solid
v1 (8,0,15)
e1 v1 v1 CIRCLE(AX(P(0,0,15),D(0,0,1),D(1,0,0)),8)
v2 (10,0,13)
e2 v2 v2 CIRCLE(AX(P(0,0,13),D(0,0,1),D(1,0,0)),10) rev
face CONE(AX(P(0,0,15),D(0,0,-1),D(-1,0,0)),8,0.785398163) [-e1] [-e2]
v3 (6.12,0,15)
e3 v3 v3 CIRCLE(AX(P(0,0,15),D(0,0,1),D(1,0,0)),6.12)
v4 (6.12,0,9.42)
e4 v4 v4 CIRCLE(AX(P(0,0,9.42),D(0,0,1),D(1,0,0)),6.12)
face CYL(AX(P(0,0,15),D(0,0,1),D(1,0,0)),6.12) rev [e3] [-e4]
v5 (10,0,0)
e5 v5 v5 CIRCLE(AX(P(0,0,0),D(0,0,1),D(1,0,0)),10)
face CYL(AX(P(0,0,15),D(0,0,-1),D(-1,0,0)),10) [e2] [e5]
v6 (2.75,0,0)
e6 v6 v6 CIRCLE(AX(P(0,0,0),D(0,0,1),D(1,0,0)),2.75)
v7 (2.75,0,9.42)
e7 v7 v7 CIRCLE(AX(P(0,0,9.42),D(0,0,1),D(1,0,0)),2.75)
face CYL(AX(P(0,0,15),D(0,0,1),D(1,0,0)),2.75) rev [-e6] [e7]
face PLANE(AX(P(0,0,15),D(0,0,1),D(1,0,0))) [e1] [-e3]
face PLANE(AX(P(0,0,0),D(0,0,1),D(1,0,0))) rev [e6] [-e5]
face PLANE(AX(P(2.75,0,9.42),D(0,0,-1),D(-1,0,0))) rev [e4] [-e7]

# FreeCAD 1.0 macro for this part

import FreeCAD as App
import Part
import Sketcher
Q = App.Units.Quantity


def edges_at(feature, points):
    """Names of the edges that pass closest to the given points."""
    edges = feature.Shape.Edges
    near = lambda p: min(range(len(edges)), key=lambda i: edges[i].distToShape(Part.Vertex(*p))[0])
    return sorted({f"Edge{near(p) + 1}" for p in points})

doc = App.newDocument("Part")
params = doc.addObject("Spreadsheet::Sheet", "Params")
for row, (alias, value) in enumerate([
    ("sketch1_diameter", "20 mm"),
    ("pad1_length", "15 mm"),
    ("chamfer_size", "2 mm"),
    ("sketch2_diameter", "5.5 mm"),
    ("hole_diameter", "5.5 mm"),
    ("hole_cbore_diameter", "12.24 mm"),
    ("hole_cbore_depth", "5.58 mm"),
], start=1):
    params.set(f"A{row}", alias)
    params.set(f"B{row}", "=" + value)
    params.setAlias(f"B{row}", alias)

body = doc.addObject("PartDesign::Body", "Body")

sketch1 = doc.addObject("Sketcher::SketchObject", "Sketch")
body.addObject(sketch1)
sketch1.AttachmentSupport = (doc.XY_Plane, [""])
sketch1.MapMode = "FlatFace"
sketch1.addGeometry(Part.Circle(App.Vector(0, 0, 0), App.Vector(0, 0, 1), 10), False)
sketch1.addConstraint([
    Sketcher.Constraint("Coincident", 0, 3, -1, 1),
    Sketcher.Constraint("Diameter", 0, Q("20 mm")),
])
sketch1.setExpression("Constraints[1]", "Params.sketch1_diameter")
pad1 = doc.addObject("PartDesign::Pad", "Pad")
body.addObject(pad1)
pad1.Profile = sketch1
pad1.setExpression("Length", "Params.pad1_length")
doc.recompute()

chamfer = doc.addObject("PartDesign::Chamfer", "Chamfer")
body.addObject(chamfer)
chamfer.Base = (pad1, edges_at(pad1, [(-10, 0, 15)]))
chamfer.setExpression("Size", "Params.chamfer_size")

sketch2 = doc.addObject("Sketcher::SketchObject", "Sketch001")
body.addObject(sketch2)
sketch2.AttachmentSupport = (doc.XY_Plane, [""])
sketch2.MapMode = "FlatFace"
sketch2.AttachmentOffset = App.Placement(App.Vector(0, 0, 15), App.Rotation())
sketch2.addGeometry(Part.Circle(App.Vector(0, 0, 0), App.Vector(0, 0, 1), 2.75), False)
sketch2.addConstraint([
    Sketcher.Constraint("Coincident", 0, 3, -1, 1),
    Sketcher.Constraint("Diameter", 0, Q("5.5 mm")),
])
sketch2.setExpression("Constraints[1]", "Params.sketch2_diameter")
doc.recompute()
hole = doc.addObject("PartDesign::Hole", "Hole")
body.addObject(hole)
hole.Profile = sketch2
hole.ThreadType = "None"
hole.setExpression("Diameter", "Params.hole_diameter")
hole.DepthType = "ThroughAll"
hole.HoleCutType = "Counterbore"
hole.setExpression("HoleCutDiameter", "Params.hole_cbore_diameter")
hole.setExpression("HoleCutDepth", "Params.hole_cbore_depth")

doc.recompute()
